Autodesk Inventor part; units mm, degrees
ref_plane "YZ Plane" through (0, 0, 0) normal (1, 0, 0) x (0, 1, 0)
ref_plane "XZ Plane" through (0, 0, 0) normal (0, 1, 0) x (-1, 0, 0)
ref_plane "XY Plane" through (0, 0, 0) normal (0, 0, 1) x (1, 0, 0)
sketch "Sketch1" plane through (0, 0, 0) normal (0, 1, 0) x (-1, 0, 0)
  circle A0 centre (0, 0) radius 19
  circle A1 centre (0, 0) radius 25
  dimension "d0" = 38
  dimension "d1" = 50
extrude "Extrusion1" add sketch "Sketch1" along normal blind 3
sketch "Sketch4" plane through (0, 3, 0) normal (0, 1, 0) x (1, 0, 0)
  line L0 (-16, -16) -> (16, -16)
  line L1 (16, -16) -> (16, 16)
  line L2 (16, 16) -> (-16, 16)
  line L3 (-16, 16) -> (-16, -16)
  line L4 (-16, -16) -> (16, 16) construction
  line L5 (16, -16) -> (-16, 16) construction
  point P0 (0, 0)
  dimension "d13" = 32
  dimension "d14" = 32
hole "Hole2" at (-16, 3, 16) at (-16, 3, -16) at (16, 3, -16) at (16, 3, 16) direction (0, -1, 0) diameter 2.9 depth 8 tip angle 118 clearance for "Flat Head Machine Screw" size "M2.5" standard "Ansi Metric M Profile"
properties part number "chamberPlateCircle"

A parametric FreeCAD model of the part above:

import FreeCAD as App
import Part
import Sketcher
from FreeCAD import Vector

doc = App.newDocument("Part")
params = doc.addObject("Spreadsheet::Sheet", "Params")
for row, (alias, value) in enumerate([
    ("sketch1_diameter", "50 mm"),
    ("sketch1_diameter2", "38 mm"),
    ("pad1_length", "3 mm"),
    ("sketch2_diameter", "2.9 mm"),
    ("hole_diameter", "2.9 mm"),
    ("hole_depth", "8 mm"),
], start=1):
    params.set(f"A{row}", alias)
    params.set(f"B{row}", "=" + value)
    params.setAlias(f"B{row}", alias)

body = doc.addObject("PartDesign::Body", "Body")

sketch1 = body.newObject("Sketcher::SketchObject", "Sketch")
sketch1.AttachmentSupport = (doc.getObject("XZ_Plane"), [""])
sketch1.MapMode = "FlatFace"
sketch1.addGeometry([
    Part.Circle(Vector(0, 0, 0), Vector(0, 0, 1), 25),
    Part.Circle(Vector(0, 0, 0), Vector(0, 0, 1), 19),
], False)
sketch1.addConstraint([
    Sketcher.Constraint("Coincident", 0, 3, -1, 1),
    Sketcher.Constraint("Coincident", 1, 3, -1, 1),
    Sketcher.Constraint("Diameter", 0, 50.0),
    Sketcher.Constraint("Diameter", 1, 38.0),
])
sketch1.setExpression("Constraints[2]", "Params.sketch1_diameter")
sketch1.setExpression("Constraints[3]", "Params.sketch1_diameter2")
pad1 = body.newObject("PartDesign::Pad", "Pad")
pad1.Profile = sketch1
pad1.setExpression("Length", "Params.pad1_length")
pad1.Reversed = True

sketch2 = body.newObject("Sketcher::SketchObject", "Sketch001")
sketch2.AttachmentSupport = (doc.getObject("XZ_Plane"), [""])
sketch2.MapMode = "FlatFace"
sketch2.AttachmentOffset = App.Placement(Vector(0, 0, -3), App.Rotation())
sketch2.addGeometry([
    Part.Circle(Vector(-16, 16, 0), Vector(0, 0, 1), 1.4),
    Part.Circle(Vector(-16, -16, 0), Vector(0, 0, 1), 1.4),
    Part.Circle(Vector(16, -16, 0), Vector(0, 0, 1), 1.4),
    Part.Circle(Vector(16, 16, 0), Vector(0, 0, 1), 1.4),
], False)
sketch2.addConstraint([
    Sketcher.Constraint("Equal", 0, 1),
    Sketcher.Constraint("Equal", 1, 2),
    Sketcher.Constraint("Equal", 2, 3),
    Sketcher.Constraint("Symmetric", 0, 3, 2, 3, -1, 1),
    Sketcher.Constraint("Symmetric", 1, 3, 3, 3, -1, 1),
    Sketcher.Constraint("Symmetric", 1, 3, 2, 3, -2),
    Sketcher.Constraint("Diameter", 0, 2.9),
    Sketcher.Constraint("DistanceX", 0, 3, -1, 1, 16.0),
    Sketcher.Constraint("DistanceY", -1, 1, 0, 3, 16.0),
])
sketch2.setExpression("Constraints[6]", "Params.sketch2_diameter")
doc.recompute()
hole = body.newObject("PartDesign::Hole", "Hole")
hole.Profile = sketch2
hole.ThreadType = "None"
hole.setExpression("Diameter", "Params.hole_diameter")
hole.DepthType = "Dimension"
hole.setExpression("Depth", "Params.hole_depth")
hole.DrillPoint = "Angled"
hole.DrillPointAngle = 118
hole.Reversed = True

doc.recompute()
